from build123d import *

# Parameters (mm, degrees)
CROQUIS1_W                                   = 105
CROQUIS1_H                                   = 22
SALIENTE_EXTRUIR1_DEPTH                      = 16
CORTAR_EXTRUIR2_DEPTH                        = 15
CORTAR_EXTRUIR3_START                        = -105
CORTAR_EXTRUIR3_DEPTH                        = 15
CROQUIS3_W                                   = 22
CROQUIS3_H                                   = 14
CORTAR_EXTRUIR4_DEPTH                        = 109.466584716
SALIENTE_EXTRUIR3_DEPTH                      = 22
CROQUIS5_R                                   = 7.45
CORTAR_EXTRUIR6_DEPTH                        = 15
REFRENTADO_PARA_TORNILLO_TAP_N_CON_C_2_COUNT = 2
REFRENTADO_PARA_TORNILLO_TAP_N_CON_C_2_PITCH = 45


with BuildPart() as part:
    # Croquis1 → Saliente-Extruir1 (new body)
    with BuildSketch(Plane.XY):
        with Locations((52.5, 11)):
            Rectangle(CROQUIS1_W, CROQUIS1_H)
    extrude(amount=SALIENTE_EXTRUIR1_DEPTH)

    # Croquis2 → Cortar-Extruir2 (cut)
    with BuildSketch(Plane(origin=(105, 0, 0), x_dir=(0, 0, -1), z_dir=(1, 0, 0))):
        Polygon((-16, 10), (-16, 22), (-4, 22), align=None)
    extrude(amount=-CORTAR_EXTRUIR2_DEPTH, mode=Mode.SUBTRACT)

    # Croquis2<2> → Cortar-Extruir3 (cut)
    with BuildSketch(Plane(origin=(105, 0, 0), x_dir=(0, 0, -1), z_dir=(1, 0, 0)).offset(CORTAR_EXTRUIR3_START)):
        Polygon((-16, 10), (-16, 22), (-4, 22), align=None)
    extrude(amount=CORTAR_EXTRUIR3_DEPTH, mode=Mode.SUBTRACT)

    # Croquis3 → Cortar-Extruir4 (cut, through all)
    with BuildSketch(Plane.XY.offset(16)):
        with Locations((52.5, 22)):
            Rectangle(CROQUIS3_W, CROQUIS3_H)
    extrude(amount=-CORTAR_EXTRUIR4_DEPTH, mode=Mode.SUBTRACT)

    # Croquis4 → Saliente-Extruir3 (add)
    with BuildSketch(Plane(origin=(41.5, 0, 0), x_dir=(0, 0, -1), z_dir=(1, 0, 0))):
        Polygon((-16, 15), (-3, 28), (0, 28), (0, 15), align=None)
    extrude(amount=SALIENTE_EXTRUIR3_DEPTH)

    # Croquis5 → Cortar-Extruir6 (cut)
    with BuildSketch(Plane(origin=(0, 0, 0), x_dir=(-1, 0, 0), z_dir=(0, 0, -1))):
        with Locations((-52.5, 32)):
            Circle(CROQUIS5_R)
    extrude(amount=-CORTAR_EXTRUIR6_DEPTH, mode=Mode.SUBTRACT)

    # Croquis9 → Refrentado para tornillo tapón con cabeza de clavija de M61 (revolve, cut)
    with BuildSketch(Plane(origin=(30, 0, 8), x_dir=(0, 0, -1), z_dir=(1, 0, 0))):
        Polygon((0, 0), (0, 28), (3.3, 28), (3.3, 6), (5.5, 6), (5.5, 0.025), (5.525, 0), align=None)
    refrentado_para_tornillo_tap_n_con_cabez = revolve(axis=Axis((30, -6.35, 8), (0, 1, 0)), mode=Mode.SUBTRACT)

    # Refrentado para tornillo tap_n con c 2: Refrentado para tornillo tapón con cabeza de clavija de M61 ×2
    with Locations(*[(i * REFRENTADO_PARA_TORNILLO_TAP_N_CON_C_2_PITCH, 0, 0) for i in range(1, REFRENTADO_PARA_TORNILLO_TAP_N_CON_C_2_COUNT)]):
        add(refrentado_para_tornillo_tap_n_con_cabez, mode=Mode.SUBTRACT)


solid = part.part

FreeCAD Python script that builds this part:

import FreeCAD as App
import Part
import Sketcher

V = App.Vector
Q = App.Units.Quantity

doc = App.newDocument("Part")
body = doc.addObject("PartDesign::Body", "Body")

sketch1 = body.newObject("Sketcher::SketchObject", "Sketch")
sketch1.AttachmentSupport = (doc.getObject("XY_Plane"), [""])
sketch1.MapMode = "FlatFace"
sketch1.addGeometry([
    Part.LineSegment(V(0, 22, 0), V(0, 0, 0)),
    Part.LineSegment(V(0, 0, 0), V(105, 0, 0)),
    Part.LineSegment(V(105, 0, 0), V(105, 22, 0)),
    Part.LineSegment(V(105, 22, 0), V(0, 22, 0)),
], False)
sketch1.addConstraint([
    Sketcher.Constraint("Coincident", 0, 2, 1, 1),
    Sketcher.Constraint("Coincident", 1, 2, 2, 1),
    Sketcher.Constraint("Coincident", 2, 2, 3, 1),
    Sketcher.Constraint("Coincident", 3, 2, 0, 1),
    Sketcher.Constraint("Vertical", 0),
    Sketcher.Constraint("Horizontal", 1),
    Sketcher.Constraint("Vertical", 2),
    Sketcher.Constraint("Horizontal", 3),
    Sketcher.Constraint("Coincident", 0, 2, -1, 1),
    Sketcher.Constraint("DistanceX", 1, 1, 1, 2, 105.0),
    Sketcher.Constraint("DistanceY", 0, 2, 0, 1, 22.0),
])
pad1 = body.newObject("PartDesign::Pad", "Pad")
pad1.Profile = sketch1
pad1.Length = 16

sketch2 = body.newObject("Sketcher::SketchObject", "Sketch001")
sketch2.AttachmentSupport = (doc.getObject("YZ_Plane"), [""])
sketch2.MapMode = "FlatFace"
sketch2.AttachmentOffset = App.Placement(V(0, 0, 105), App.Rotation())
sketch2.addGeometry([
    Part.LineSegment(V(22, 16, 0), V(10, 16, 0)),
    Part.LineSegment(V(10, 16, 0), V(22, 4, 0)),
    Part.LineSegment(V(22, 4, 0), V(22, 16, 0)),
], False)
sketch2.addConstraint([
    Sketcher.Constraint("Coincident", 0, 2, 1, 1),
    Sketcher.Constraint("Coincident", 1, 2, 2, 1),
    Sketcher.Constraint("Coincident", 2, 2, 0, 1),
    Sketcher.Constraint("Horizontal", 0),
    Sketcher.Constraint("Vertical", 2),
    Sketcher.Constraint("Equal", 0, 2),
    Sketcher.Constraint("DistanceX", 0, 2, 0, 1, 12.0),
    Sketcher.Constraint("DistanceX", -1, 1, 0, 2, 10.0),
    Sketcher.Constraint("DistanceY", -1, 1, 0, 2, 16.0),
])
pocket1 = body.newObject("PartDesign::Pocket", "Pocket")
pocket1.Profile = sketch2
pocket1.Length = 15

sketch3 = body.newObject("Sketcher::SketchObject", "Sketch002")
sketch3.AttachmentSupport = (doc.getObject("YZ_Plane"), [""])
sketch3.MapMode = "FlatFace"
sketch3.addGeometry([
    Part.LineSegment(V(22, 16, 0), V(10, 16, 0)),
    Part.LineSegment(V(10, 16, 0), V(22, 4, 0)),
    Part.LineSegment(V(22, 4, 0), V(22, 16, 0)),
], False)
sketch3.addConstraint([
    Sketcher.Constraint("Coincident", 0, 2, 1, 1),
    Sketcher.Constraint("Coincident", 1, 2, 2, 1),
    Sketcher.Constraint("Coincident", 2, 2, 0, 1),
    Sketcher.Constraint("Horizontal", 0),
    Sketcher.Constraint("Vertical", 2),
    Sketcher.Constraint("Equal", 0, 2),
    Sketcher.Constraint("DistanceX", 0, 2, 0, 1, 12.0),
    Sketcher.Constraint("DistanceX", -1, 1, 0, 2, 10.0),
    Sketcher.Constraint("DistanceY", -1, 1, 0, 2, 16.0),
])
pocket2 = body.newObject("PartDesign::Pocket", "Pocket001")
pocket2.Profile = sketch3
pocket2.Length = 15
pocket2.Reversed = True

sketch4 = body.newObject("Sketcher::SketchObject", "Sketch003")
sketch4.AttachmentSupport = (doc.getObject("XY_Plane"), [""])
sketch4.MapMode = "FlatFace"
sketch4.AttachmentOffset = App.Placement(V(0, 0, 16), App.Rotation())
sketch4.addGeometry([
    Part.LineSegment(V(42, 29, 0), V(42, 15, 0)),
    Part.LineSegment(V(42, 15, 0), V(64, 15, 0)),
    Part.LineSegment(V(64, 15, 0), V(64, 29, 0)),
    Part.LineSegment(V(64, 29, 0), V(42, 29, 0)),
], False)
sketch4.addConstraint([
    Sketcher.Constraint("Coincident", 0, 2, 1, 1),
    Sketcher.Constraint("Coincident", 1, 2, 2, 1),
    Sketcher.Constraint("Coincident", 2, 2, 3, 1),
    Sketcher.Constraint("Coincident", 3, 2, 0, 1),
    Sketcher.Constraint("Vertical", 0),
    Sketcher.Constraint("Horizontal", 1),
    Sketcher.Constraint("Vertical", 2),
    Sketcher.Constraint("Horizontal", 3),
    Sketcher.Constraint("DistanceX", 1, 1, 1, 2, 22.0),
    Sketcher.Constraint("DistanceY", 0, 2, 0, 1, 14.0),
    Sketcher.Constraint("DistanceY", -1, 1, 0, 2, 15.0),
    Sketcher.Constraint("DistanceX", -1, 1, 0, 2, 41.5),
])
pocket3 = body.newObject("PartDesign::Pocket", "Pocket002")
pocket3.Profile = sketch4
pocket3.Type = "ThroughAll"

sketch5 = body.newObject("Sketcher::SketchObject", "Sketch004")
sketch5.AttachmentSupport = (doc.getObject("YZ_Plane"), [""])
sketch5.MapMode = "FlatFace"
sketch5.AttachmentOffset = App.Placement(V(0, 0, 41.5), App.Rotation())
sketch5.addGeometry([
    Part.LineSegment(V(28, 3, 0), V(15, 16, 0)),
    Part.LineSegment(V(15, 16, 0), V(15, 0, 0)),
    Part.LineSegment(V(15, 0, 0), V(28, 0, 0)),
    Part.LineSegment(V(28, 0, 0), V(28, 3, 0)),
], False)
sketch5.addConstraint([
    Sketcher.Constraint("Coincident", 0, 2, 1, 1),
    Sketcher.Constraint("Coincident", 1, 2, 2, 1),
    Sketcher.Constraint("Coincident", 2, 2, 3, 1),
    Sketcher.Constraint("Coincident", 3, 2, 0, 1),
    Sketcher.Constraint("Vertical", 1),
    Sketcher.Constraint("Horizontal", 2),
    Sketcher.Constraint("Vertical", 3),
    Sketcher.Constraint("PointOnObject", 1, 2, -1),
    Sketcher.Constraint("DistanceX", 2, 1, 2, 2, 13.0),
    Sketcher.Constraint("DistanceY", 1, 2, 1, 1, 16.0),
    Sketcher.Constraint("DistanceY", 3, 1, 3, 2, 3.0),
    Sketcher.Constraint("DistanceX", -1, 1, 0, 2, 15.0),
])
pad2 = body.newObject("PartDesign::Pad", "Pad001")
pad2.Profile = sketch5
pad2.Length = 22

sketch6 = body.newObject("Sketcher::SketchObject", "Sketch005")
sketch6.AttachmentSupport = (doc.getObject("XY_Plane"), [""])
sketch6.MapMode = "FlatFace"
sketch6.addGeometry(Part.Circle(V(52, 32, 0), V(0, 0, 1), 7), False)
sketch6.addConstraint([
    Sketcher.Constraint("Diameter", 0, 14.9),
    Sketcher.Constraint("DistanceY", -1, 1, 0, 3, 32.0),
    Sketcher.Constraint("DistanceX", -1, 1, 0, 3, 52.5),
])
pocket4 = body.newObject("PartDesign::Pocket", "Pocket003")
pocket4.Profile = sketch6
pocket4.Length = 15
pocket4.Reversed = True

sketch7 = body.newObject("Sketcher::SketchObject", "Sketch006")
sketch7.AttachmentSupport = (doc.getObject("YZ_Plane"), [""])
sketch7.MapMode = "FlatFace"
sketch7.AttachmentOffset = App.Placement(V(0, 0, 30), App.Rotation())
sketch7.addGeometry([
    Part.LineSegment(V(28, 8, 0), V(0, 8, 0)),
    Part.LineSegment(V(0, 8, 0), V(0, 2.475, 0)),
    Part.LineSegment(V(0, 2.475, 0), V(0.025, 2.5, 0)),
    Part.LineSegment(V(0.025, 2.5, 0), V(6, 2.5, 0)),
    Part.LineSegment(V(6, 2.5, 0), V(6, 4.7, 0)),
    Part.LineSegment(V(6, 4.7, 0), V(28, 4.7, 0)),
    Part.LineSegment(V(28, 4.7, 0), V(28, 8, 0)),
], False)
sketch7.addGeometry(Part.LineSegment(V(0, 8, 0), V(28, 8, 0)), True)
sketch7.addConstraint([
    Sketcher.Constraint("Coincident", 0, 2, 1, 1),
    Sketcher.Constraint("Coincident", 1, 2, 2, 1),
    Sketcher.Constraint("Coincident", 2, 2, 3, 1),
    Sketcher.Constraint("Coincident", 3, 2, 4, 1),
    Sketcher.Constraint("Coincident", 4, 2, 5, 1),
    Sketcher.Constraint("Coincident", 5, 2, 6, 1),
    Sketcher.Constraint("Coincident", 6, 2, 0, 1),
    Sketcher.Constraint("Horizontal", 0),
    Sketcher.Constraint("Vertical", 1),
    Sketcher.Constraint("Horizontal", 3),
    Sketcher.Constraint("Vertical", 4),
    Sketcher.Constraint("Horizontal", 5),
    Sketcher.Constraint("Vertical", 6),
    Sketcher.Constraint("Horizontal", 7),
    Sketcher.Constraint("Coincident", 7, 1, 0, 2),
    Sketcher.Constraint("PointOnObject", 0, 2, -2),
    Sketcher.Constraint("Vertical", 5, 2, 7, 2),
    Sketcher.Constraint("DistanceX", 0, 2, 0, 1, 28.0),
    Sketcher.Constraint("DistanceX", 5, 1, 5, 2, 22.0),
    Sketcher.Constraint("Angle", 2, Q("45 deg")),
    Sketcher.Constraint("DistanceY", 4, 1, 4, 2, 2.2),
    Sketcher.Constraint("DistanceY", 6, 1, 6, 2, 3.3),
    Sketcher.Constraint("DistanceY", -1, 1, 0, 2, 8.0),
    Sketcher.Constraint("DistanceX", 3, 1, 3, 2, 5.975),
])
groove = body.newObject("PartDesign::Groove", "Groove")
groove.Profile = sketch7
groove.ReferenceAxis = (sketch7, ["Axis0"])
groove.Angle = 360
doc.recompute()

linearpattern = body.newObject("PartDesign::LinearPattern", "LinearPattern")
linearpattern.Originals = [groove]
linearpattern.Direction = (doc.getObject("X_Axis"), [""])
linearpattern.Mode = "offset"
linearpattern.Offset = 45
linearpattern.Occurrences = 2
body.Tip = linearpattern

doc.recompute()
